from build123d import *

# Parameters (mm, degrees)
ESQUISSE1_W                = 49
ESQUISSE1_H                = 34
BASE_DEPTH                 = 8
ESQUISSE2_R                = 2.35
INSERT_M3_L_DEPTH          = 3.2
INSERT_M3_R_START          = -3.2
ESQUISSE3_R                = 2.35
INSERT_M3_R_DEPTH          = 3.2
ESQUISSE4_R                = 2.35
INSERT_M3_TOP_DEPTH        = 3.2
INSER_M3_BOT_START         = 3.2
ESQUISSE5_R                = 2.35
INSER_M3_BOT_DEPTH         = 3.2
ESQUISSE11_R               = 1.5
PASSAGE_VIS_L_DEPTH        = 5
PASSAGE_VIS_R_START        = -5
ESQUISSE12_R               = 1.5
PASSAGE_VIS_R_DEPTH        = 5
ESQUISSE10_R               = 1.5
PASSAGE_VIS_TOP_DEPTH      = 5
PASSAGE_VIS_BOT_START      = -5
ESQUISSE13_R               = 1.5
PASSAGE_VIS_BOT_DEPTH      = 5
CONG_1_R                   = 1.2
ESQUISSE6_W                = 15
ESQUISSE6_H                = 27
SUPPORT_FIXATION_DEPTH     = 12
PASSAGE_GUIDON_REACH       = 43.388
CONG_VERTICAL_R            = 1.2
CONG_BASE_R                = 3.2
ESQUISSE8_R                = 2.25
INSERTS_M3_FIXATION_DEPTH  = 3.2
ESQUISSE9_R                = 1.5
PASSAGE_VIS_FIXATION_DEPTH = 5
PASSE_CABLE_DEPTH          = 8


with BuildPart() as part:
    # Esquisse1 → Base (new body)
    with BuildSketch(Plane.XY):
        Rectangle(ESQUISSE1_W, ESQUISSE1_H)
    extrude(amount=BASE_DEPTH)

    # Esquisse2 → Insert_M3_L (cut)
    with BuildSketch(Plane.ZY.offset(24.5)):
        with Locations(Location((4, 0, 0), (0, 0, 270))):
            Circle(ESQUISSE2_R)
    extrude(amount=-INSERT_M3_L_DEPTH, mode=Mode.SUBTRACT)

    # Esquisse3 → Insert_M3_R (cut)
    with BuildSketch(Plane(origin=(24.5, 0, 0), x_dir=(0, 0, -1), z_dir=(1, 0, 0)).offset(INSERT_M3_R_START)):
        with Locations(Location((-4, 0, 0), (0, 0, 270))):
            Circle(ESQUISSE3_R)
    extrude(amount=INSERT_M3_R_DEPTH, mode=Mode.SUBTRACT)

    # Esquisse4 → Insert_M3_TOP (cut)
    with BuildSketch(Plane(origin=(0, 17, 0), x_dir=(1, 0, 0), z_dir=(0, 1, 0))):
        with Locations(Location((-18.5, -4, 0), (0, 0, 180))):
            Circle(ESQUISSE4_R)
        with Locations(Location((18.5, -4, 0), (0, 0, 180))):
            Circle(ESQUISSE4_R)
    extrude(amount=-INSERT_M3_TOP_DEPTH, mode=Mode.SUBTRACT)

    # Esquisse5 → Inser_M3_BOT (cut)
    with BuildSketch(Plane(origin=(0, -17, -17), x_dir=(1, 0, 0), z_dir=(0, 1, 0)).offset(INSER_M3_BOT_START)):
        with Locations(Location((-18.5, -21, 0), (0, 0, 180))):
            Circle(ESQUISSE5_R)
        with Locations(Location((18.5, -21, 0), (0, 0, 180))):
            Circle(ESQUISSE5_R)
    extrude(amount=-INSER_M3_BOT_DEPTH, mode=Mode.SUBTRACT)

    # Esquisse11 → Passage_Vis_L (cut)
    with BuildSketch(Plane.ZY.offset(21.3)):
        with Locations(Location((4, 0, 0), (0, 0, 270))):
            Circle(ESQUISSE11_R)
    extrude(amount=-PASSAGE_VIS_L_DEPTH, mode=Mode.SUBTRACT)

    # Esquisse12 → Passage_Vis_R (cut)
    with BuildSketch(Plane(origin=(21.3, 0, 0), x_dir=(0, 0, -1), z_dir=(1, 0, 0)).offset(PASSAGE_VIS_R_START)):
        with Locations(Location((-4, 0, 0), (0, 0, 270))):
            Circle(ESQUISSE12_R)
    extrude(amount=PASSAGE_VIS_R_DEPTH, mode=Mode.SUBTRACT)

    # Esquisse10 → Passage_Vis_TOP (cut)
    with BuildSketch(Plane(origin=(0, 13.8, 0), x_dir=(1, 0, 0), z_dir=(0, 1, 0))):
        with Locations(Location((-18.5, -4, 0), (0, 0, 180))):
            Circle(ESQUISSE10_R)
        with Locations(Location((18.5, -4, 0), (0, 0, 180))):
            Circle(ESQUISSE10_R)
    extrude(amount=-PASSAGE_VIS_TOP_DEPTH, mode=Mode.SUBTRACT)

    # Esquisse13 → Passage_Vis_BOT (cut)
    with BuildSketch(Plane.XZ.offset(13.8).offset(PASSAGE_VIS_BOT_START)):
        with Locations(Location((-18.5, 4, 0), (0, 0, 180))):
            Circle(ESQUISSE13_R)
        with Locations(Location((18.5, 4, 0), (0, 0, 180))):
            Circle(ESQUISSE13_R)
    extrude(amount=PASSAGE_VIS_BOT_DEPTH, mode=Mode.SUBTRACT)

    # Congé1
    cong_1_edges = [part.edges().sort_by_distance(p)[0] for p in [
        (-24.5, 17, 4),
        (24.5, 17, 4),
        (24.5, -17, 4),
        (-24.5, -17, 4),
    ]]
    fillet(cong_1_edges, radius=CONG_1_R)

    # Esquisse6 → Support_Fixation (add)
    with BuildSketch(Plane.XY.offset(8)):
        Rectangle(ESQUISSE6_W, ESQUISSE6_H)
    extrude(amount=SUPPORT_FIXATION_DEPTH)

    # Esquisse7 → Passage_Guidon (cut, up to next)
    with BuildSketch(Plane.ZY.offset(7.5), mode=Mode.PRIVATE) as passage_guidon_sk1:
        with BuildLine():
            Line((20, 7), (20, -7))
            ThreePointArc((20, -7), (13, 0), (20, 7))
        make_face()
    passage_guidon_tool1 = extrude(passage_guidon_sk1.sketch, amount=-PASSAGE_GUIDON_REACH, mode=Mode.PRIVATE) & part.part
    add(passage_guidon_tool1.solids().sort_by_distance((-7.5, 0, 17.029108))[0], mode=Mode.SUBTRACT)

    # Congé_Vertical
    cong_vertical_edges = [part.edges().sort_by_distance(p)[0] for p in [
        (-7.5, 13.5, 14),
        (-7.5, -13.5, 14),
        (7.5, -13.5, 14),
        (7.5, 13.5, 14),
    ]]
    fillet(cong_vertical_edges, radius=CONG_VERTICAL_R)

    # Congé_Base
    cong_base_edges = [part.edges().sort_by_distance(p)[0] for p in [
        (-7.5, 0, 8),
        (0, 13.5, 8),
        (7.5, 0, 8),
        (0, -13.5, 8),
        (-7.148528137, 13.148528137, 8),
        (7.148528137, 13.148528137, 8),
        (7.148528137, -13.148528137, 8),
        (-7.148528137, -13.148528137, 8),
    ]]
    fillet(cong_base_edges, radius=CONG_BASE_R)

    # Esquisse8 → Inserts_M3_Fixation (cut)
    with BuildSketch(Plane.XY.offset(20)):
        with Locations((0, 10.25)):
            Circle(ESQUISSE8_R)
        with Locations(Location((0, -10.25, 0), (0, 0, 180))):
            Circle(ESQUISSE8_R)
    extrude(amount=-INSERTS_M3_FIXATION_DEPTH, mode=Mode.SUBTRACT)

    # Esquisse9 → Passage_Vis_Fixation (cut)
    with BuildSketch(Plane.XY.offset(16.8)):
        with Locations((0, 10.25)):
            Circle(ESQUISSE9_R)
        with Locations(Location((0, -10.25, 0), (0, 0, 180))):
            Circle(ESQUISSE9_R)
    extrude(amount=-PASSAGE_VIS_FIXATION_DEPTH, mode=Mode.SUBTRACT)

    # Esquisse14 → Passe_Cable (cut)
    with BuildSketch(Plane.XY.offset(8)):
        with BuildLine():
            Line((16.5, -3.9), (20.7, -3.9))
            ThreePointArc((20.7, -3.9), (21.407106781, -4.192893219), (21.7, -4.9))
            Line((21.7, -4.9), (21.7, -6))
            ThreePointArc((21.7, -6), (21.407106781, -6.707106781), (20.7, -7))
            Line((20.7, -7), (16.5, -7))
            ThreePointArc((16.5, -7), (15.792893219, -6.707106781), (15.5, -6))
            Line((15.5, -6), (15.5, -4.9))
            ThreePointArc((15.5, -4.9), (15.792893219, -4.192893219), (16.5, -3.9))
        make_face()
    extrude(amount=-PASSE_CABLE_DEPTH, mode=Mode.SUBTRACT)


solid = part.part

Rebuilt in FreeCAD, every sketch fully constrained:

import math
import FreeCAD as App
import Part
import Sketcher

V = App.Vector
Q = App.Units.Quantity


def edges_at(feature, points):
    """Names of the edges that pass closest to the given points."""
    edges = feature.Shape.Edges
    near = lambda p: min(range(len(edges)), key=lambda i: edges[i].distToShape(Part.Vertex(*p))[0])
    return sorted({f"Edge{near(p) + 1}" for p in points})

doc = App.newDocument("Part")
body = doc.addObject("PartDesign::Body", "Body")

sketch1 = body.newObject("Sketcher::SketchObject", "Sketch")
sketch1.AttachmentSupport = (doc.getObject("XY_Plane"), [""])
sketch1.MapMode = "FlatFace"
sketch1.addGeometry(Part.LineSegment(V(-24, 17, 0), V(-24, -17, 0)), False)
sketch1.addGeometry(Part.LineSegment(V(-24, -17, 0), V(24, -17, 0)), False)
sketch1.addGeometry(Part.LineSegment(V(24, -17, 0), V(24, 17, 0)), False)
sketch1.addGeometry(Part.LineSegment(V(24, 17, 0), V(-24, 17, 0)), False)
sketch1.addConstraint(Sketcher.Constraint("Coincident", 0, 2, 1, 1))
sketch1.addConstraint(Sketcher.Constraint("Coincident", 1, 2, 2, 1))
sketch1.addConstraint(Sketcher.Constraint("Coincident", 2, 2, 3, 1))
sketch1.addConstraint(Sketcher.Constraint("Coincident", 3, 2, 0, 1))
sketch1.addConstraint(Sketcher.Constraint("Vertical", 0))
sketch1.addConstraint(Sketcher.Constraint("Horizontal", 1))
sketch1.addConstraint(Sketcher.Constraint("Vertical", 2))
sketch1.addConstraint(Sketcher.Constraint("Horizontal", 3))
sketch1.addConstraint(Sketcher.Constraint("Symmetric", 0, 2, 2, 2, -1, 1))
sketch1.addConstraint(Sketcher.Constraint("DistanceX", 1, 1, 1, 2, Q("49 mm")))
sketch1.addConstraint(Sketcher.Constraint("DistanceY", 0, 2, 0, 1, Q("34 mm")))
pad1 = body.newObject("PartDesign::Pad", "Pad")
pad1.Profile = sketch1
pad1.Length = 8

sketch2 = body.newObject("Sketcher::SketchObject", "Sketch001")
sketch2.AttachmentSupport = (doc.getObject("YZ_Plane"), [""])
sketch2.MapMode = "FlatFace"
sketch2.AttachmentOffset = App.Placement(V(0, 0, -24.5), App.Rotation())
sketch2.addGeometry(Part.Circle(V(0, 4, 0), V(0, 0, 1), 2.4), False)
sketch2.addConstraint(Sketcher.Constraint("PointOnObject", 0, 3, -2))
sketch2.addConstraint(Sketcher.Constraint("Diameter", 0, Q("4.7 mm")))
sketch2.addConstraint(Sketcher.Constraint("DistanceY", -1, 1, 0, 3, Q("4 mm")))
pocket1 = body.newObject("PartDesign::Pocket", "Pocket")
pocket1.Profile = sketch2
pocket1.Length = 3.2
pocket1.Reversed = True

sketch3 = body.newObject("Sketcher::SketchObject", "Sketch002")
sketch3.AttachmentSupport = (doc.getObject("YZ_Plane"), [""])
sketch3.MapMode = "FlatFace"
sketch3.AttachmentOffset = App.Placement(V(0, 0, 21.3), App.Rotation())
sketch3.addGeometry(Part.Circle(V(0, 4, 0), V(0, 0, 1), 2.4), False)
sketch3.addConstraint(Sketcher.Constraint("PointOnObject", 0, 3, -2))
sketch3.addConstraint(Sketcher.Constraint("Diameter", 0, Q("4.7 mm")))
sketch3.addConstraint(Sketcher.Constraint("DistanceY", -1, 1, 0, 3, Q("4 mm")))
pocket2 = body.newObject("PartDesign::Pocket", "Pocket001")
pocket2.Profile = sketch3
pocket2.Length = 3.2
pocket2.Reversed = True

sketch4 = body.newObject("Sketcher::SketchObject", "Sketch003")
sketch4.AttachmentSupport = (doc.getObject("XZ_Plane"), [""])
sketch4.MapMode = "FlatFace"
sketch4.AttachmentOffset = App.Placement(V(0, 0, -17), App.Rotation())
sketch4.addGeometry(Part.Circle(V(-18.5, 4, 0), V(0, 0, 1), 2.4), False)
sketch4.addGeometry(Part.Circle(V(18.5, 4, 0), V(0, 0, 1), 2.4), False)
sketch4.addConstraint(Sketcher.Constraint("Equal", 0, 1))
sketch4.addConstraint(Sketcher.Constraint("Symmetric", 0, 3, 1, 3, -2))
sketch4.addConstraint(Sketcher.Constraint("Diameter", 0, Q("4.7 mm")))
sketch4.addConstraint(Sketcher.Constraint("DistanceY", -1, 1, 0, 3, Q("4 mm")))
sketch4.addConstraint(Sketcher.Constraint("DistanceX", 0, 3, 1, 3, Q("37 mm")))
pocket3 = body.newObject("PartDesign::Pocket", "Pocket002")
pocket3.Profile = sketch4
pocket3.Length = 3.2
pocket3.Reversed = True

sketch5 = body.newObject("Sketcher::SketchObject", "Sketch004")
sketch5.AttachmentSupport = (doc.getObject("XZ_Plane"), [""])
sketch5.MapMode = "FlatFace"
sketch5.AttachmentOffset = App.Placement(V(0, 0, 13.8), App.Rotation())
sketch5.addGeometry(Part.Circle(V(-18.5, 4, 0), V(0, 0, 1), 2.4), False)
sketch5.addGeometry(Part.Circle(V(18.5, 4, 0), V(0, 0, 1), 2.4), False)
sketch5.addConstraint(Sketcher.Constraint("Equal", 0, 1))
sketch5.addConstraint(Sketcher.Constraint("Symmetric", 0, 3, 1, 3, -2))
sketch5.addConstraint(Sketcher.Constraint("Diameter", 0, Q("4.7 mm")))
sketch5.addConstraint(Sketcher.Constraint("DistanceY", -1, 1, 0, 3, Q("4 mm")))
sketch5.addConstraint(Sketcher.Constraint("DistanceX", 0, 3, 1, 3, Q("37 mm")))
pocket4 = body.newObject("PartDesign::Pocket", "Pocket003")
pocket4.Profile = sketch5
pocket4.Length = 3.2
pocket4.Reversed = True

sketch6 = body.newObject("Sketcher::SketchObject", "Sketch005")
sketch6.AttachmentSupport = (doc.getObject("YZ_Plane"), [""])
sketch6.MapMode = "FlatFace"
sketch6.AttachmentOffset = App.Placement(V(0, 0, -21.3), App.Rotation())
sketch6.addGeometry(Part.Circle(V(0, 4, 0), V(0, 0, 1), 1.5), False)
sketch6.addConstraint(Sketcher.Constraint("PointOnObject", 0, 3, -2))
sketch6.addConstraint(Sketcher.Constraint("Diameter", 0, Q("3 mm")))
sketch6.addConstraint(Sketcher.Constraint("DistanceY", -1, 1, 0, 3, Q("4 mm")))
pocket5 = body.newObject("PartDesign::Pocket", "Pocket004")
pocket5.Profile = sketch6
pocket5.Length = 5
pocket5.Reversed = True

sketch7 = body.newObject("Sketcher::SketchObject", "Sketch006")
sketch7.AttachmentSupport = (doc.getObject("YZ_Plane"), [""])
sketch7.MapMode = "FlatFace"
sketch7.AttachmentOffset = App.Placement(V(0, 0, 16.3), App.Rotation())
sketch7.addGeometry(Part.Circle(V(0, 4, 0), V(0, 0, 1), 1.5), False)
sketch7.addConstraint(Sketcher.Constraint("PointOnObject", 0, 3, -2))
sketch7.addConstraint(Sketcher.Constraint("Diameter", 0, Q("3 mm")))
sketch7.addConstraint(Sketcher.Constraint("DistanceY", -1, 1, 0, 3, Q("4 mm")))
pocket6 = body.newObject("PartDesign::Pocket", "Pocket005")
pocket6.Profile = sketch7
pocket6.Length = 5
pocket6.Reversed = True

sketch8 = body.newObject("Sketcher::SketchObject", "Sketch007")
sketch8.AttachmentSupport = (doc.getObject("XZ_Plane"), [""])
sketch8.MapMode = "FlatFace"
sketch8.AttachmentOffset = App.Placement(V(0, 0, -13.8), App.Rotation())
sketch8.addGeometry(Part.Circle(V(-18.5, 4, 0), V(0, 0, 1), 1.5), False)
sketch8.addGeometry(Part.Circle(V(18.5, 4, 0), V(0, 0, 1), 1.5), False)
sketch8.addConstraint(Sketcher.Constraint("Equal", 0, 1))
sketch8.addConstraint(Sketcher.Constraint("Symmetric", 0, 3, 1, 3, -2))
sketch8.addConstraint(Sketcher.Constraint("Diameter", 0, Q("3 mm")))
sketch8.addConstraint(Sketcher.Constraint("DistanceY", -1, 1, 0, 3, Q("4 mm")))
sketch8.addConstraint(Sketcher.Constraint("DistanceX", 0, 3, 1, 3, Q("37 mm")))
pocket7 = body.newObject("PartDesign::Pocket", "Pocket006")
pocket7.Profile = sketch8
pocket7.Length = 5
pocket7.Reversed = True

sketch9 = body.newObject("Sketcher::SketchObject", "Sketch008")
sketch9.AttachmentSupport = (doc.getObject("XZ_Plane"), [""])
sketch9.MapMode = "FlatFace"
sketch9.AttachmentOffset = App.Placement(V(0, 0, 8.8), App.Rotation())
sketch9.addGeometry(Part.Circle(V(-18.5, 4, 0), V(0, 0, 1), 1.5), False)
sketch9.addGeometry(Part.Circle(V(18.5, 4, 0), V(0, 0, 1), 1.5), False)
sketch9.addConstraint(Sketcher.Constraint("Equal", 0, 1))
sketch9.addConstraint(Sketcher.Constraint("Symmetric", 0, 3, 1, 3, -2))
sketch9.addConstraint(Sketcher.Constraint("Diameter", 0, Q("3 mm")))
sketch9.addConstraint(Sketcher.Constraint("DistanceY", -1, 1, 0, 3, Q("4 mm")))
sketch9.addConstraint(Sketcher.Constraint("DistanceX", 0, 3, 1, 3, Q("37 mm")))
pocket8 = body.newObject("PartDesign::Pocket", "Pocket007")
pocket8.Profile = sketch9
pocket8.Length = 5
pocket8.Reversed = True
doc.recompute()

fillet = body.newObject("PartDesign::Fillet", "Fillet")
fillet.Base = (pocket8, edges_at(pocket8, [
    (-24.5, 17, 4),
    (24.5, 17, 4),
    (24.5, -17, 4),
    (-24.5, -17, 4),
]))
fillet.Radius = 1.2

sketch10 = body.newObject("Sketcher::SketchObject", "Sketch009")
sketch10.AttachmentSupport = (doc.getObject("XY_Plane"), [""])
sketch10.MapMode = "FlatFace"
sketch10.AttachmentOffset = App.Placement(V(0, 0, 8), App.Rotation())
sketch10.addGeometry(Part.LineSegment(V(-8, 14, 0), V(-8, -14, 0)), False)
sketch10.addGeometry(Part.LineSegment(V(-8, -14, 0), V(8, -14, 0)), False)
sketch10.addGeometry(Part.LineSegment(V(8, -14, 0), V(8, 14, 0)), False)
sketch10.addGeometry(Part.LineSegment(V(8, 14, 0), V(-8, 14, 0)), False)
sketch10.addConstraint(Sketcher.Constraint("Coincident", 0, 2, 1, 1))
sketch10.addConstraint(Sketcher.Constraint("Coincident", 1, 2, 2, 1))
sketch10.addConstraint(Sketcher.Constraint("Coincident", 2, 2, 3, 1))
sketch10.addConstraint(Sketcher.Constraint("Coincident", 3, 2, 0, 1))
sketch10.addConstraint(Sketcher.Constraint("Vertical", 0))
sketch10.addConstraint(Sketcher.Constraint("Horizontal", 1))
sketch10.addConstraint(Sketcher.Constraint("Vertical", 2))
sketch10.addConstraint(Sketcher.Constraint("Horizontal", 3))
sketch10.addConstraint(Sketcher.Constraint("Symmetric", 0, 2, 2, 2, -1, 1))
sketch10.addConstraint(Sketcher.Constraint("DistanceX", 1, 1, 1, 2, Q("15 mm")))
sketch10.addConstraint(Sketcher.Constraint("DistanceY", 0, 2, 0, 1, Q("27 mm")))
pad2 = body.newObject("PartDesign::Pad", "Pad001")
pad2.Profile = sketch10
pad2.Length = 12

sketch11 = body.newObject("Sketcher::SketchObject", "Sketch010")
sketch11.AttachmentSupport = (doc.getObject("YZ_Plane"), [""])
sketch11.MapMode = "FlatFace"
sketch11.AttachmentOffset = App.Placement(V(0, 0, -7.5), App.Rotation())
sketch11.addGeometry(Part.LineSegment(V(-7, 20, 0), V(7, 20, 0)), False)
sketch11.addGeometry(Part.ArcOfCircle(Part.Circle(V(0, 20, 0), V(0, 0, 1), 7), math.radians(180), math.radians(360)), False)
sketch11.addConstraint(Sketcher.Constraint("Coincident", 0, 1, 1, 1))
sketch11.addConstraint(Sketcher.Constraint("Coincident", 1, 2, 0, 2))
sketch11.addConstraint(Sketcher.Constraint("Horizontal", 0))
sketch11.addConstraint(Sketcher.Constraint("PointOnObject", 1, 3, -2))
sketch11.addConstraint(Sketcher.Constraint("Horizontal", 1, 3, 0, 1))
sketch11.addConstraint(Sketcher.Constraint("Radius", 1, Q("7 mm")))
sketch11.addConstraint(Sketcher.Constraint("DistanceY", -1, 1, 1, 3, Q("20 mm")))
pocket9 = body.newObject("PartDesign::Pocket", "Pocket008")
pocket9.Profile = sketch11
pocket9.Type = "UpToFirst"
pocket9.Reversed = True
doc.recompute()

fillet2 = body.newObject("PartDesign::Fillet", "Fillet001")
fillet2.Base = (pocket9, edges_at(pocket9, [
    (-7.5, 13.5, 14),
    (-7.5, -13.5, 14),
    (7.5, -13.5, 14),
    (7.5, 13.5, 14),
]))
fillet2.Radius = 1.2
doc.recompute()

fillet3 = body.newObject("PartDesign::Fillet", "Fillet002")
fillet3.Base = (fillet2, edges_at(fillet2, [
    (-7.5, 0, 8),
    (0, 13.5, 8),
    (7.5, 0, 8),
    (0, -13.5, 8),
    (-7.149, 13.149, 8),
    (7.149, 13.149, 8),
    (7.149, -13.149, 8),
    (-7.149, -13.149, 8),
]))
fillet3.Radius = 3.2

sketch12 = body.newObject("Sketcher::SketchObject", "Sketch011")
sketch12.AttachmentSupport = (doc.getObject("XY_Plane"), [""])
sketch12.MapMode = "FlatFace"
sketch12.AttachmentOffset = App.Placement(V(0, 0, 20), App.Rotation())
sketch12.addGeometry(Part.Circle(V(0, 10.2, 0), V(0, 0, 1), 2.2), False)
sketch12.addGeometry(Part.Circle(V(0, -10.2, 0), V(0, 0, 1), 2.2), False)
sketch12.addConstraint(Sketcher.Constraint("Equal", 0, 1))
sketch12.addConstraint(Sketcher.Constraint("Symmetric", 0, 3, 1, 3, -1, 1))
sketch12.addConstraint(Sketcher.Constraint("PointOnObject", 0, 3, -2))
sketch12.addConstraint(Sketcher.Constraint("Diameter", 0, Q("4.5 mm")))
sketch12.addConstraint(Sketcher.Constraint("DistanceY", 1, 3, 0, 3, Q("20.5 mm")))
pocket10 = body.newObject("PartDesign::Pocket", "Pocket009")
pocket10.Profile = sketch12
pocket10.Length = 3.2

sketch13 = body.newObject("Sketcher::SketchObject", "Sketch012")
sketch13.AttachmentSupport = (doc.getObject("XY_Plane"), [""])
sketch13.MapMode = "FlatFace"
sketch13.AttachmentOffset = App.Placement(V(0, 0, 16.8), App.Rotation())
sketch13.addGeometry(Part.Circle(V(0, 10.2, 0), V(0, 0, 1), 1.5), False)
sketch13.addGeometry(Part.Circle(V(0, -10.2, 0), V(0, 0, 1), 1.5), False)
sketch13.addConstraint(Sketcher.Constraint("Equal", 0, 1))
sketch13.addConstraint(Sketcher.Constraint("Symmetric", 0, 3, 1, 3, -1, 1))
sketch13.addConstraint(Sketcher.Constraint("PointOnObject", 0, 3, -2))
sketch13.addConstraint(Sketcher.Constraint("Diameter", 0, Q("3 mm")))
sketch13.addConstraint(Sketcher.Constraint("DistanceY", 1, 3, 0, 3, Q("20.5 mm")))
pocket11 = body.newObject("PartDesign::Pocket", "Pocket010")
pocket11.Profile = sketch13
pocket11.Length = 5

sketch14 = body.newObject("Sketcher::SketchObject", "Sketch013")
sketch14.AttachmentSupport = (doc.getObject("XY_Plane"), [""])
sketch14.MapMode = "FlatFace"
sketch14.AttachmentOffset = App.Placement(V(0, 0, 8), App.Rotation())
sketch14.addGeometry(Part.LineSegment(V(20.7, -3.9, 0), V(16.5, -3.9, 0)), False)
sketch14.addGeometry(Part.ArcOfCircle(Part.Circle(V(16.5, -4.9, 0), V(0, 0, 1), 1), math.radians(90), math.radians(180)), False)
sketch14.addGeometry(Part.LineSegment(V(15.5, -4.9, 0), V(15.5, -6, 0)), False)
sketch14.addGeometry(Part.ArcOfCircle(Part.Circle(V(16.5, -6, 0), V(0, 0, 1), 1), math.radians(-180), math.radians(-90)), False)
sketch14.addGeometry(Part.LineSegment(V(16.5, -7, 0), V(20.7, -7, 0)), False)
sketch14.addGeometry(Part.ArcOfCircle(Part.Circle(V(20.7, -6, 0), V(0, 0, 1), 1), math.radians(-90), math.radians(0)), False)
sketch14.addGeometry(Part.LineSegment(V(21.7, -6, 0), V(21.7, -4.9, 0)), False)
sketch14.addGeometry(Part.ArcOfCircle(Part.Circle(V(20.7, -4.9, 0), V(0, 0, 1), 1), math.radians(0), math.radians(90)), False)
sketch14.addConstraint(Sketcher.Constraint("Tangent", 0, 2, 1, 1))
sketch14.addConstraint(Sketcher.Constraint("Tangent", 1, 2, 2, 1))
sketch14.addConstraint(Sketcher.Constraint("Tangent", 2, 2, 3, 1))
sketch14.addConstraint(Sketcher.Constraint("Tangent", 3, 2, 4, 1))
sketch14.addConstraint(Sketcher.Constraint("Tangent", 4, 2, 5, 1))
sketch14.addConstraint(Sketcher.Constraint("Tangent", 5, 2, 6, 1))
sketch14.addConstraint(Sketcher.Constraint("Tangent", 6, 2, 7, 1))
sketch14.addConstraint(Sketcher.Constraint("Tangent", 7, 2, 0, 1))
sketch14.addConstraint(Sketcher.Constraint("Horizontal", 0))
sketch14.addConstraint(Sketcher.Constraint("Vertical", 2))
sketch14.addConstraint(Sketcher.Constraint("Horizontal", 4))
sketch14.addConstraint(Sketcher.Constraint("Vertical", 6))
sketch14.addConstraint(Sketcher.Constraint("Equal", 1, 3))
sketch14.addConstraint(Sketcher.Constraint("Equal", 3, 5))
sketch14.addConstraint(Sketcher.Constraint("Equal", 5, 7))
sketch14.addConstraint(Sketcher.Constraint("Radius", 1, Q("1 mm")))
sketch14.addConstraint(Sketcher.Constraint("DistanceX", 0, 2, 0, 1, Q("4.2 mm")))
sketch14.addConstraint(Sketcher.Constraint("DistanceY", 2, 2, 2, 1, Q("1.1 mm")))
sketch14.addConstraint(Sketcher.Constraint("DistanceY", 3, 3, -1, 1, Q("6 mm")))
sketch14.addConstraint(Sketcher.Constraint("DistanceX", -1, 1, 1, 3, Q("16.5 mm")))
pocket12 = body.newObject("PartDesign::Pocket", "Pocket011")
pocket12.Profile = sketch14
pocket12.Length = 8

doc.recompute()
